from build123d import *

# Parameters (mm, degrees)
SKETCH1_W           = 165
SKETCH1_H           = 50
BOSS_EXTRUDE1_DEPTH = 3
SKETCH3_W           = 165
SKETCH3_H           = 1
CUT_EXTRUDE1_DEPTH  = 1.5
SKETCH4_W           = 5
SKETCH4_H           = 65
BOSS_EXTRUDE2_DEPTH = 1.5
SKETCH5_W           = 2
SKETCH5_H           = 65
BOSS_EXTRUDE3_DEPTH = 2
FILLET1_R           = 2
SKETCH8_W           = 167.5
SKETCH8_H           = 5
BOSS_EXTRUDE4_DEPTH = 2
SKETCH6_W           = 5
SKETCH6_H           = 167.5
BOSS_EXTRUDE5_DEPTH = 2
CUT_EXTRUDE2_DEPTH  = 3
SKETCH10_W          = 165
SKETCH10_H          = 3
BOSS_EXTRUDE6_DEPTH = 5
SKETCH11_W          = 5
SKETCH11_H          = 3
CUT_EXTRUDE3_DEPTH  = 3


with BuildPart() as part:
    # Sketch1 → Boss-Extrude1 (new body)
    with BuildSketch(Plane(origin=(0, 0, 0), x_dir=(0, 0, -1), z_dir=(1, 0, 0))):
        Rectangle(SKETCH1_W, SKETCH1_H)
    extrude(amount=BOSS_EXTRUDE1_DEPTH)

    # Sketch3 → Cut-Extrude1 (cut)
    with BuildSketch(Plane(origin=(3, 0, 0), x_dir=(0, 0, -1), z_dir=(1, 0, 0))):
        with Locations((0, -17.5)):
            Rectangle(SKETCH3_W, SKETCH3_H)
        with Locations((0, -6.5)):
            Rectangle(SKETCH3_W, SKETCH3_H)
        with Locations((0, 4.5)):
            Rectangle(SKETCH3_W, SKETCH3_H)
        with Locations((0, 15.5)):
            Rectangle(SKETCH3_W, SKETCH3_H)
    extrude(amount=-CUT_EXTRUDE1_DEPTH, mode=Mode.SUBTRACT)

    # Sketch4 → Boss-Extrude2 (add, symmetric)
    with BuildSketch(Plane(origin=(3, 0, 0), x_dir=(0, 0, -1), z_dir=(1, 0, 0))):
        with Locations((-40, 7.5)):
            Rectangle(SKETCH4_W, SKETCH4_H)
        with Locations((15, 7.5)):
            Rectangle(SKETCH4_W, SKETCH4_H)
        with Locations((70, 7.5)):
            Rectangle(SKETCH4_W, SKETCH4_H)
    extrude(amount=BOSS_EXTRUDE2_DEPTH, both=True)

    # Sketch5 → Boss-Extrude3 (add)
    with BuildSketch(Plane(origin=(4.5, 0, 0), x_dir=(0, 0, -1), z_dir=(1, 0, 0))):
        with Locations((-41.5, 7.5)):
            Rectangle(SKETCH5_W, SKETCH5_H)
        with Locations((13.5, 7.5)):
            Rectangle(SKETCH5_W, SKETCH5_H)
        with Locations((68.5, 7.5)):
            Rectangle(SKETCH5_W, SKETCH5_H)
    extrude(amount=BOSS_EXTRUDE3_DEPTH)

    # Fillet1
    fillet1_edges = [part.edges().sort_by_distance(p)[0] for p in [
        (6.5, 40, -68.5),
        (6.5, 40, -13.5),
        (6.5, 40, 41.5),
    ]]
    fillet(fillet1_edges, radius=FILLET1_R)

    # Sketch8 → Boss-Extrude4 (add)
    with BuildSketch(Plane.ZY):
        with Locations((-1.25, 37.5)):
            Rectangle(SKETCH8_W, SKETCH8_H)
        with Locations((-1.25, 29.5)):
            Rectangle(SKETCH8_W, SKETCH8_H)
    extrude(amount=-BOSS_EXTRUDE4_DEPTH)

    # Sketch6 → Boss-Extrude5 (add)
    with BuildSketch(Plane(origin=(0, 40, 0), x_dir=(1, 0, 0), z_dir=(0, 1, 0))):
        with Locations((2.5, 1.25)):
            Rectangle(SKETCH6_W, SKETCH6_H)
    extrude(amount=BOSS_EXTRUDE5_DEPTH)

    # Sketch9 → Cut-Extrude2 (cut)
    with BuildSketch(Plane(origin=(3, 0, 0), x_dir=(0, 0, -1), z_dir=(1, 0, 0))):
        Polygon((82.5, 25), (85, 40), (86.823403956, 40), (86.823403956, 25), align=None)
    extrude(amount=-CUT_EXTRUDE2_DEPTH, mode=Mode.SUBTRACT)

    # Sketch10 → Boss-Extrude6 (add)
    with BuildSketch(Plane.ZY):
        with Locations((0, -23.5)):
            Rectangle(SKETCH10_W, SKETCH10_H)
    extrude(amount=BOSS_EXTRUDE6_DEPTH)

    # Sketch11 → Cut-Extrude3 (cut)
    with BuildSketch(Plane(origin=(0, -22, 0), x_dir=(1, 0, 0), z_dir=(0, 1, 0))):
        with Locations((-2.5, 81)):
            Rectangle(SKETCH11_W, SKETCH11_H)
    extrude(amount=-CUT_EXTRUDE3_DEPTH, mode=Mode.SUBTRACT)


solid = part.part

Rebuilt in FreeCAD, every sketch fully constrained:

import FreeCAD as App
import Part
import Sketcher

V = App.Vector
Q = App.Units.Quantity


def edges_at(feature, points):
    """Names of the edges that pass closest to the given points."""
    edges = feature.Shape.Edges
    near = lambda p: min(range(len(edges)), key=lambda i: edges[i].distToShape(Part.Vertex(*p))[0])
    return sorted({f"Edge{near(p) + 1}" for p in points})


def add_polygon(sketch, points):
    """Adds a closed chain of lines whose ends are joined by coincident constraints."""
    first, n = sketch.GeometryCount, len(points)
    for a, b in zip(points, points[1:] + points[:1]):
        sketch.addGeometry(Part.LineSegment(App.Vector(*a, 0), App.Vector(*b, 0)), False)
    for i in range(n):
        sketch.addConstraint(Sketcher.Constraint("Coincident", first + i, 2, first + (i + 1) % n, 1))

doc = App.newDocument("Part")
body = doc.addObject("PartDesign::Body", "Body")

sketch1 = doc.addObject("Sketcher::SketchObject", "Sketch")
body.addObject(sketch1)
sketch1.AttachmentSupport = (doc.YZ_Plane, [""])
sketch1.MapMode = "FlatFace"
add_polygon(sketch1, [(25, 82), (-25, 82), (-25, -82), (25, -82)])
sketch1.addConstraint(Sketcher.Constraint("Horizontal", 0))
sketch1.addConstraint(Sketcher.Constraint("Vertical", 1))
sketch1.addConstraint(Sketcher.Constraint("Horizontal", 2))
sketch1.addConstraint(Sketcher.Constraint("Vertical", 3))
sketch1.addConstraint(Sketcher.Constraint("Symmetric", 0, 2, 2, 2, -1, 1))
sketch1.addConstraint(Sketcher.Constraint("DistanceX", 0, 2, 0, 1, Q("50 mm")))
sketch1.addConstraint(Sketcher.Constraint("DistanceY", 1, 2, 1, 1, Q("165 mm")))
pad1 = doc.addObject("PartDesign::Pad", "Pad")
body.addObject(pad1)
pad1.Profile = sketch1
pad1.Length = 3

sketch2 = doc.addObject("Sketcher::SketchObject", "Sketch001")
body.addObject(sketch2)
sketch2.AttachmentSupport = (doc.YZ_Plane, [""])
sketch2.MapMode = "FlatFace"
sketch2.AttachmentOffset = App.Placement(V(0, 0, 3), App.Rotation())
add_polygon(sketch2, [(-17, 82.5), (-18, 82.5), (-18, -82.5), (-17, -82.5)])
add_polygon(sketch2, [(-6, 82.5), (-7, 82.5), (-7, -82.5), (-6, -82.5)])
add_polygon(sketch2, [(5, 82.5), (4, 82.5), (4, -82.5), (5, -82.5)])
add_polygon(sketch2, [(16, 82.5), (15, 82.5), (15, -82.5), (16, -82.5)])
sketch2.addConstraint(Sketcher.Constraint("Horizontal", 0))
sketch2.addConstraint(Sketcher.Constraint("Vertical", 1))
sketch2.addConstraint(Sketcher.Constraint("Horizontal", 2))
sketch2.addConstraint(Sketcher.Constraint("Vertical", 3))
sketch2.addConstraint(Sketcher.Constraint("Horizontal", 4))
sketch2.addConstraint(Sketcher.Constraint("Vertical", 5))
sketch2.addConstraint(Sketcher.Constraint("Horizontal", 6))
sketch2.addConstraint(Sketcher.Constraint("Vertical", 7))
sketch2.addConstraint(Sketcher.Constraint("Horizontal", 8))
sketch2.addConstraint(Sketcher.Constraint("Vertical", 9))
sketch2.addConstraint(Sketcher.Constraint("Horizontal", 10))
sketch2.addConstraint(Sketcher.Constraint("Vertical", 11))
sketch2.addConstraint(Sketcher.Constraint("Horizontal", 12))
sketch2.addConstraint(Sketcher.Constraint("Vertical", 13))
sketch2.addConstraint(Sketcher.Constraint("Horizontal", 14))
sketch2.addConstraint(Sketcher.Constraint("Vertical", 15))
sketch2.addConstraint(Sketcher.Constraint("Horizontal", 3, 2, 4, 2))
sketch2.addConstraint(Sketcher.Constraint("Horizontal", 2, 2, 5, 2))
sketch2.addConstraint(Sketcher.Constraint("Horizontal", 7, 2, 8, 2))
sketch2.addConstraint(Sketcher.Constraint("Horizontal", 6, 2, 9, 2))
sketch2.addConstraint(Sketcher.Constraint("Horizontal", 11, 2, 12, 2))
sketch2.addConstraint(Sketcher.Constraint("Horizontal", 10, 2, 13, 2))
sketch2.addConstraint(Sketcher.Constraint("Equal", 2, 4))
sketch2.addConstraint(Sketcher.Constraint("Equal", 6, 8))
sketch2.addConstraint(Sketcher.Constraint("Equal", 10, 12))
sketch2.addConstraint(Sketcher.Constraint("DistanceX", 0, 2, 0, 1, Q("1 mm")))
sketch2.addConstraint(Sketcher.Constraint("DistanceY", 1, 2, 1, 1, Q("165 mm")))
sketch2.addConstraint(Sketcher.Constraint("DistanceX", 0, 2, -1, 1, Q("18 mm")))
sketch2.addConstraint(Sketcher.Constraint("DistanceX", 4, 2, -1, 1, Q("7 mm")))
sketch2.addConstraint(Sketcher.Constraint("DistanceX", -1, 1, 8, 2, Q("4 mm")))
sketch2.addConstraint(Sketcher.Constraint("DistanceX", -1, 1, 12, 2, Q("15 mm")))
sketch2.addConstraint(Sketcher.Constraint("DistanceY", -1, 1, 0, 2, Q("82.5 mm")))
pocket1 = doc.addObject("PartDesign::Pocket", "Pocket")
body.addObject(pocket1)
pocket1.Profile = sketch2
pocket1.Length = 1.5

sketch3 = doc.addObject("Sketcher::SketchObject", "Sketch002")
body.addObject(sketch3)
sketch3.AttachmentSupport = (doc.YZ_Plane, [""])
sketch3.MapMode = "FlatFace"
sketch3.AttachmentOffset = App.Placement(V(0, 0, 3), App.Rotation())
add_polygon(sketch3, [(40, 42), (-25, 42), (-25, 38), (40, 38)])
add_polygon(sketch3, [(40, -12), (-25, -12), (-25, -18), (40, -18)])
add_polygon(sketch3, [(40, -68), (-25, -68), (-25, -72), (40, -72)])
sketch3.addConstraint(Sketcher.Constraint("Horizontal", 0))
sketch3.addConstraint(Sketcher.Constraint("Vertical", 1))
sketch3.addConstraint(Sketcher.Constraint("Horizontal", 2))
sketch3.addConstraint(Sketcher.Constraint("Vertical", 3))
sketch3.addConstraint(Sketcher.Constraint("Horizontal", 4))
sketch3.addConstraint(Sketcher.Constraint("Vertical", 5))
sketch3.addConstraint(Sketcher.Constraint("Horizontal", 6))
sketch3.addConstraint(Sketcher.Constraint("Vertical", 7))
sketch3.addConstraint(Sketcher.Constraint("Horizontal", 8))
sketch3.addConstraint(Sketcher.Constraint("Vertical", 9))
sketch3.addConstraint(Sketcher.Constraint("Horizontal", 10))
sketch3.addConstraint(Sketcher.Constraint("Vertical", 11))
sketch3.addConstraint(Sketcher.Constraint("Vertical", 1, 2, 4, 2))
sketch3.addConstraint(Sketcher.Constraint("Vertical", 3, 2, 6, 2))
sketch3.addConstraint(Sketcher.Constraint("Vertical", 5, 2, 8, 2))
sketch3.addConstraint(Sketcher.Constraint("Vertical", 7, 2, 10, 2))
sketch3.addConstraint(Sketcher.Constraint("Equal", 3, 5))
sketch3.addConstraint(Sketcher.Constraint("Equal", 7, 9))
sketch3.addConstraint(Sketcher.Constraint("DistanceX", 0, 2, 0, 1, Q("65 mm")))
sketch3.addConstraint(Sketcher.Constraint("DistanceY", 1, 2, 1, 1, Q("5 mm")))
sketch3.addConstraint(Sketcher.Constraint("DistanceX", 0, 2, -1, 1, Q("25 mm")))
sketch3.addConstraint(Sketcher.Constraint("DistanceY", 4, 2, 1, 2, Q("50 mm")))
sketch3.addConstraint(Sketcher.Constraint("DistanceY", 8, 2, 5, 2, Q("50 mm")))
sketch3.addConstraint(Sketcher.Constraint("DistanceY", -1, 1, 0, 2, Q("42.5 mm")))
pad2 = doc.addObject("PartDesign::Pad", "Pad001")
body.addObject(pad2)
pad2.Profile = sketch3
pad2.Length = 3
pad2.Midplane = True

sketch4 = doc.addObject("Sketcher::SketchObject", "Sketch003")
body.addObject(sketch4)
sketch4.AttachmentSupport = (doc.YZ_Plane, [""])
sketch4.MapMode = "FlatFace"
sketch4.AttachmentOffset = App.Placement(V(0, 0, 4.5), App.Rotation())
add_polygon(sketch4, [(40, 42.5), (-25, 42.5), (-25, 40.5), (40, 40.5)])
add_polygon(sketch4, [(40, -12.5), (-25, -12.5), (-25, -14.5), (40, -14.5)])
add_polygon(sketch4, [(40, -67.5), (-25, -67.5), (-25, -69.5), (40, -69.5)])
sketch4.addConstraint(Sketcher.Constraint("Horizontal", 0))
sketch4.addConstraint(Sketcher.Constraint("Vertical", 1))
sketch4.addConstraint(Sketcher.Constraint("Horizontal", 2))
sketch4.addConstraint(Sketcher.Constraint("Vertical", 3))
sketch4.addConstraint(Sketcher.Constraint("Horizontal", 4))
sketch4.addConstraint(Sketcher.Constraint("Vertical", 5))
sketch4.addConstraint(Sketcher.Constraint("Horizontal", 6))
sketch4.addConstraint(Sketcher.Constraint("Vertical", 7))
sketch4.addConstraint(Sketcher.Constraint("Horizontal", 8))
sketch4.addConstraint(Sketcher.Constraint("Vertical", 9))
sketch4.addConstraint(Sketcher.Constraint("Horizontal", 10))
sketch4.addConstraint(Sketcher.Constraint("Vertical", 11))
sketch4.addConstraint(Sketcher.Constraint("Vertical", 1, 2, 4, 2))
sketch4.addConstraint(Sketcher.Constraint("Vertical", 3, 2, 6, 2))
sketch4.addConstraint(Sketcher.Constraint("Vertical", 5, 2, 8, 2))
sketch4.addConstraint(Sketcher.Constraint("Vertical", 7, 2, 10, 2))
sketch4.addConstraint(Sketcher.Constraint("Equal", 3, 5))
sketch4.addConstraint(Sketcher.Constraint("Equal", 7, 9))
sketch4.addConstraint(Sketcher.Constraint("DistanceX", 0, 2, 0, 1, Q("65 mm")))
sketch4.addConstraint(Sketcher.Constraint("DistanceY", 1, 2, 1, 1, Q("2 mm")))
sketch4.addConstraint(Sketcher.Constraint("DistanceX", 0, 2, -1, 1, Q("25 mm")))
sketch4.addConstraint(Sketcher.Constraint("DistanceY", 4, 2, 1, 2, Q("53 mm")))
sketch4.addConstraint(Sketcher.Constraint("DistanceY", 8, 2, 5, 2, Q("53 mm")))
sketch4.addConstraint(Sketcher.Constraint("DistanceY", -1, 1, 0, 2, Q("42.5 mm")))
pad3 = doc.addObject("PartDesign::Pad", "Pad002")
body.addObject(pad3)
pad3.Profile = sketch4
pad3.Length = 2
doc.recompute()

fillet = doc.addObject("PartDesign::Fillet", "Fillet")
body.addObject(fillet)
fillet.Base = (pad3, edges_at(pad3, [(6.5, 40, -68.5), (6.5, 40, -13.5), (6.5, 40, 41.5)]))
fillet.Radius = 2

sketch5 = doc.addObject("Sketcher::SketchObject", "Sketch004")
body.addObject(sketch5)
sketch5.AttachmentSupport = (doc.YZ_Plane, [""])
sketch5.MapMode = "FlatFace"
add_polygon(sketch5, [(40, -85), (35, -85), (35, 82), (40, 82)])
add_polygon(sketch5, [(32, -85), (27, -85), (27, 82), (32, 82)])
sketch5.addConstraint(Sketcher.Constraint("Horizontal", 0))
sketch5.addConstraint(Sketcher.Constraint("Vertical", 1))
sketch5.addConstraint(Sketcher.Constraint("Horizontal", 2))
sketch5.addConstraint(Sketcher.Constraint("Vertical", 3))
sketch5.addConstraint(Sketcher.Constraint("Horizontal", 4))
sketch5.addConstraint(Sketcher.Constraint("Vertical", 5))
sketch5.addConstraint(Sketcher.Constraint("Horizontal", 6))
sketch5.addConstraint(Sketcher.Constraint("Vertical", 7))
sketch5.addConstraint(Sketcher.Constraint("Horizontal", 3, 2, 4, 2))
sketch5.addConstraint(Sketcher.Constraint("Horizontal", 2, 2, 5, 2))
sketch5.addConstraint(Sketcher.Constraint("Equal", 2, 4))
sketch5.addConstraint(Sketcher.Constraint("DistanceX", 0, 2, 0, 1, Q("5 mm")))
sketch5.addConstraint(Sketcher.Constraint("DistanceY", 1, 1, 1, 2, Q("167.5 mm")))
sketch5.addConstraint(Sketcher.Constraint("DistanceX", -1, 1, 0, 2, Q("35 mm")))
sketch5.addConstraint(Sketcher.Constraint("DistanceY", 0, 2, -1, 1, Q("85 mm")))
sketch5.addConstraint(Sketcher.Constraint("DistanceX", -1, 1, 4, 2, Q("27 mm")))
pad4 = doc.addObject("PartDesign::Pad", "Pad003")
body.addObject(pad4)
pad4.Profile = sketch5
pad4.Length = 2

sketch6 = doc.addObject("Sketcher::SketchObject", "Sketch005")
body.addObject(sketch6)
sketch6.AttachmentSupport = (doc.XZ_Plane, [""])
sketch6.MapMode = "FlatFace"
sketch6.AttachmentOffset = App.Placement(V(0, 0, -40), App.Rotation())
add_polygon(sketch6, [(0, -85), (0, 82), (5, 82), (5, -85)])
sketch6.addConstraint(Sketcher.Constraint("Vertical", 0))
sketch6.addConstraint(Sketcher.Constraint("Horizontal", 1))
sketch6.addConstraint(Sketcher.Constraint("Vertical", 2))
sketch6.addConstraint(Sketcher.Constraint("Horizontal", 3))
sketch6.addConstraint(Sketcher.Constraint("PointOnObject", 0, 2, -2))
sketch6.addConstraint(Sketcher.Constraint("DistanceX", 1, 1, 1, 2, Q("5 mm")))
sketch6.addConstraint(Sketcher.Constraint("DistanceY", 0, 1, 0, 2, Q("167.5 mm")))
sketch6.addConstraint(Sketcher.Constraint("DistanceY", 2, 2, -1, 1, Q("85 mm")))
pad5 = doc.addObject("PartDesign::Pad", "Pad004")
body.addObject(pad5)
pad5.Profile = sketch6
pad5.Length = 2
pad5.Reversed = True

sketch7 = doc.addObject("Sketcher::SketchObject", "Sketch006")
body.addObject(sketch7)
sketch7.AttachmentSupport = (doc.YZ_Plane, [""])
sketch7.MapMode = "FlatFace"
sketch7.AttachmentOffset = App.Placement(V(0, 0, 3), App.Rotation())
add_polygon(sketch7, [(40, -85), (25, -82.5), (25, -86.8), (40, -86.8)])
sketch7.addConstraint(Sketcher.Constraint("Vertical", 1))
sketch7.addConstraint(Sketcher.Constraint("Horizontal", 2))
sketch7.addConstraint(Sketcher.Constraint("Vertical", 3))
sketch7.addConstraint(Sketcher.Constraint("DistanceX", 2, 1, 2, 2, Q("15 mm")))
sketch7.addConstraint(Sketcher.Constraint("DistanceX", -1, 1, 0, 2, Q("25 mm")))
sketch7.addConstraint(Sketcher.Constraint("DistanceY", 3, 2, -1, 1, Q("85 mm")))
sketch7.addConstraint(Sketcher.Constraint("DistanceY", 0, 2, -1, 1, Q("82.5 mm")))
sketch7.addConstraint(Sketcher.Constraint("DistanceY", 1, 2, 1, 1, Q("4.323404 mm")))
pocket2 = doc.addObject("PartDesign::Pocket", "Pocket001")
body.addObject(pocket2)
pocket2.Profile = sketch7
pocket2.Length = 3

sketch8 = doc.addObject("Sketcher::SketchObject", "Sketch007")
body.addObject(sketch8)
sketch8.AttachmentSupport = (doc.YZ_Plane, [""])
sketch8.MapMode = "FlatFace"
add_polygon(sketch8, [(-22, -82.5), (-25, -82.5), (-25, 82.5), (-22, 82.5)])
sketch8.addConstraint(Sketcher.Constraint("Horizontal", 0))
sketch8.addConstraint(Sketcher.Constraint("Vertical", 1))
sketch8.addConstraint(Sketcher.Constraint("Horizontal", 2))
sketch8.addConstraint(Sketcher.Constraint("Vertical", 3))
sketch8.addConstraint(Sketcher.Constraint("DistanceX", 0, 2, 0, 1, Q("3 mm")))
sketch8.addConstraint(Sketcher.Constraint("DistanceY", 1, 1, 1, 2, Q("165 mm")))
sketch8.addConstraint(Sketcher.Constraint("DistanceX", 0, 2, -1, 1, Q("25 mm")))
sketch8.addConstraint(Sketcher.Constraint("DistanceY", 0, 2, -1, 1, Q("82.5 mm")))
pad6 = doc.addObject("PartDesign::Pad", "Pad005")
body.addObject(pad6)
pad6.Profile = sketch8
pad6.Length = 5
pad6.Reversed = True

sketch9 = doc.addObject("Sketcher::SketchObject", "Sketch008")
body.addObject(sketch9)
sketch9.AttachmentSupport = (doc.XZ_Plane, [""])
sketch9.MapMode = "FlatFace"
sketch9.AttachmentOffset = App.Placement(V(0, 0, 22), App.Rotation())
add_polygon(sketch9, [(-5, -82.5), (-5, -79.5), (0, -79.5), (0, -82.5)])
sketch9.addConstraint(Sketcher.Constraint("Vertical", 0))
sketch9.addConstraint(Sketcher.Constraint("Horizontal", 1))
sketch9.addConstraint(Sketcher.Constraint("Vertical", 2))
sketch9.addConstraint(Sketcher.Constraint("Horizontal", 3))
sketch9.addConstraint(Sketcher.Constraint("PointOnObject", 1, 2, -2))
sketch9.addConstraint(Sketcher.Constraint("DistanceX", 1, 1, 1, 2, Q("5 mm")))
sketch9.addConstraint(Sketcher.Constraint("DistanceY", 0, 1, 0, 2, Q("3 mm")))
sketch9.addConstraint(Sketcher.Constraint("DistanceY", 0, 2, -1, 1, Q("79.5 mm")))
pocket3 = doc.addObject("PartDesign::Pocket", "Pocket002")
body.addObject(pocket3)
pocket3.Profile = sketch9
pocket3.Length = 3
pocket3.Reversed = True

doc.recompute()
